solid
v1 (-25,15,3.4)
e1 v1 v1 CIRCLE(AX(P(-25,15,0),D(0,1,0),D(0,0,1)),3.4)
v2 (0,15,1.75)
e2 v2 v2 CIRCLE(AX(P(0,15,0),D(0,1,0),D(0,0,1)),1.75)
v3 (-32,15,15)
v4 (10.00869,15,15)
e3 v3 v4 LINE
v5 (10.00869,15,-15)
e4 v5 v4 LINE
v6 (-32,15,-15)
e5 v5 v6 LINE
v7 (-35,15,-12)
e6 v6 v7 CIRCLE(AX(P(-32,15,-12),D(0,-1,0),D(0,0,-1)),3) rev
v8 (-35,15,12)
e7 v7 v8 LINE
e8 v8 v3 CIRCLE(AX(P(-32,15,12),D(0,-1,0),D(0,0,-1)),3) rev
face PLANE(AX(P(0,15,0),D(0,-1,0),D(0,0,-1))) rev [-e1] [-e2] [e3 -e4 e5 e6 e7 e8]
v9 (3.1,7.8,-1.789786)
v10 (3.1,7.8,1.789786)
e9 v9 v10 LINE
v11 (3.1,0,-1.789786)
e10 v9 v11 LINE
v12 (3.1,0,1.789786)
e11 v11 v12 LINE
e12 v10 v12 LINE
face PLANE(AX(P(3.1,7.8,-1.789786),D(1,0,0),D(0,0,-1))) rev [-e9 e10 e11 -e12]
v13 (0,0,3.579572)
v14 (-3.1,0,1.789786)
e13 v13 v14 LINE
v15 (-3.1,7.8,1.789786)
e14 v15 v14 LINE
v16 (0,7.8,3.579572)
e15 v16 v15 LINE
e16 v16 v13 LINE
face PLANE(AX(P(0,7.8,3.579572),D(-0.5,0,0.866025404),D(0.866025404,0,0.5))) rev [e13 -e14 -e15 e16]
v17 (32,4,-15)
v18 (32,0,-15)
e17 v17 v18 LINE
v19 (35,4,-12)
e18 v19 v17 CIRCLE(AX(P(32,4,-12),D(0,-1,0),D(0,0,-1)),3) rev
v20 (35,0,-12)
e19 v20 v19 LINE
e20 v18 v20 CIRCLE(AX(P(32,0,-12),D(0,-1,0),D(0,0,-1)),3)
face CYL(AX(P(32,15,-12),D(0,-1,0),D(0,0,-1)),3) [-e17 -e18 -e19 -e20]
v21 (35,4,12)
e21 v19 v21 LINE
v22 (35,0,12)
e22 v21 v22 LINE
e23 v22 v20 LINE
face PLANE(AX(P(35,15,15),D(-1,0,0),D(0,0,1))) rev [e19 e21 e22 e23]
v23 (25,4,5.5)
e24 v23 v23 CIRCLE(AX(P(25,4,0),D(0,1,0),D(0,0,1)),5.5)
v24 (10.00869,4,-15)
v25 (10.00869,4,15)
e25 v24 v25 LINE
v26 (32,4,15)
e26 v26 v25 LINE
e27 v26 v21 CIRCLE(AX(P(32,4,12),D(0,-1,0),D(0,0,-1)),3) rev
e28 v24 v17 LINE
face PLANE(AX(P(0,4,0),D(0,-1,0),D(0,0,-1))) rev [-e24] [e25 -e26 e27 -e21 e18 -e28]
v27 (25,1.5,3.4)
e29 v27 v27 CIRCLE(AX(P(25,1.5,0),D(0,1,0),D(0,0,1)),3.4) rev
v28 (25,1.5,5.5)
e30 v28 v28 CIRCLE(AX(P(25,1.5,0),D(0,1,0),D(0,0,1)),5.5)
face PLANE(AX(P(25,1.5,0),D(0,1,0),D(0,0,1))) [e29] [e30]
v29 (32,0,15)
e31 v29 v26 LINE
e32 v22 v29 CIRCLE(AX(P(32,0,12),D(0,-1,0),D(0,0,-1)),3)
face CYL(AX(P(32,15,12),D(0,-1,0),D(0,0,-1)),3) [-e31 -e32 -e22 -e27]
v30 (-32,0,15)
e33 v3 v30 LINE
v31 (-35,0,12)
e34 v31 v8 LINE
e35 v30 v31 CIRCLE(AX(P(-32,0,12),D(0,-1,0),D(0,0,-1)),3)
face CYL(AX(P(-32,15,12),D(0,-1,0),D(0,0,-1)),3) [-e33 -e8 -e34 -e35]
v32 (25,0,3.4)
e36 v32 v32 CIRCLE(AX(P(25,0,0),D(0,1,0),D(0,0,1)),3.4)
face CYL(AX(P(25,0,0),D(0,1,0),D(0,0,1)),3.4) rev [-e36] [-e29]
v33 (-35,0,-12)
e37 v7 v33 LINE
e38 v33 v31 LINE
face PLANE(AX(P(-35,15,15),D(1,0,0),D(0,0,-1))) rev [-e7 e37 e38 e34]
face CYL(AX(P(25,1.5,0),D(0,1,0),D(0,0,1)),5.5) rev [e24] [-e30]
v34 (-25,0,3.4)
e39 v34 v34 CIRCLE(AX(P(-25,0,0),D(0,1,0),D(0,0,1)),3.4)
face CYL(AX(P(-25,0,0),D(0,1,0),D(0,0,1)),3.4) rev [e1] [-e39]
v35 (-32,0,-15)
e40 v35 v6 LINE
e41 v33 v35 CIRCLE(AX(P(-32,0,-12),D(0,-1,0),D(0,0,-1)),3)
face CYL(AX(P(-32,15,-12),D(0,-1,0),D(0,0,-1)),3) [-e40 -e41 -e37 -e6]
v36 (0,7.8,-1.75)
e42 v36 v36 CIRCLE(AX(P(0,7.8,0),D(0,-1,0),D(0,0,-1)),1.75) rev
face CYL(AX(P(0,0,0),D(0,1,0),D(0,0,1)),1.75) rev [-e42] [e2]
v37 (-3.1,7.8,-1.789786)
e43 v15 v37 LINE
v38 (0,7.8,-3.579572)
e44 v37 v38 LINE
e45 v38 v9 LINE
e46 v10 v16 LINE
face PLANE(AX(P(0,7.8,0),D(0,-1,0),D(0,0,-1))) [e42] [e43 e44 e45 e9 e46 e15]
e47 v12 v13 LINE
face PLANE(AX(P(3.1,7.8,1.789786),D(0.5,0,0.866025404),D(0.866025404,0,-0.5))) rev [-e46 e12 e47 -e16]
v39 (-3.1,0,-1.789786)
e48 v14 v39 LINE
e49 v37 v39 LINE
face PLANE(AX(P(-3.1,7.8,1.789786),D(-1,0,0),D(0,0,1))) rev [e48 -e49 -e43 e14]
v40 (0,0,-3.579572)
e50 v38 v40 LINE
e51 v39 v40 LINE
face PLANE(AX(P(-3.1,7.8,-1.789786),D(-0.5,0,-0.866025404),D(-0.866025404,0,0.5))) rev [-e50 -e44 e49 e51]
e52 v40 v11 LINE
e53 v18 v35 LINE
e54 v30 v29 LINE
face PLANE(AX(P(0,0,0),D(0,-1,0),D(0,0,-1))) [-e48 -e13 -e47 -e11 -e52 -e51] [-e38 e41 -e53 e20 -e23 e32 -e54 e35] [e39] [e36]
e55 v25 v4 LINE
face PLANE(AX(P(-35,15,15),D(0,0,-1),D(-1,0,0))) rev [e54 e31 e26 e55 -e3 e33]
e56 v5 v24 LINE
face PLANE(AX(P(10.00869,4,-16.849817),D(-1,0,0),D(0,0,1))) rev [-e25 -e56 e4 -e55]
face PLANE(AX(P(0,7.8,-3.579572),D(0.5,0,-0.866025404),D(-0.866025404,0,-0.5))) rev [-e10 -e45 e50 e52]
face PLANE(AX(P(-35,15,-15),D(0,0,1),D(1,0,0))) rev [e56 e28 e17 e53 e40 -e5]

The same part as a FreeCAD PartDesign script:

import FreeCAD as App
import Part
import Sketcher

V = App.Vector
Q = App.Units.Quantity


def edges_at(feature, points):
    """Names of the edges that pass closest to the given points."""
    edges = feature.Shape.Edges
    near = lambda p: min(range(len(edges)), key=lambda i: edges[i].distToShape(Part.Vertex(*p))[0])
    return sorted({f"Edge{near(p) + 1}" for p in points})

doc = App.newDocument("Part")
body = doc.addObject("PartDesign::Body", "Body")

sketch1 = body.newObject("Sketcher::SketchObject", "Sketch")
sketch1.AttachmentSupport = (doc.getObject("XZ_Plane"), [""])
sketch1.MapMode = "FlatFace"
sketch1.addGeometry(Part.LineSegment(V(-35, -15, 0), V(-35, 15, 0)), False)
sketch1.addGeometry(Part.LineSegment(V(-35, 15, 0), V(35, 15, 0)), False)
sketch1.addGeometry(Part.LineSegment(V(35, 15, 0), V(35, -15, 0)), False)
sketch1.addGeometry(Part.LineSegment(V(35, -15, 0), V(-35, -15, 0)), False)
sketch1.addConstraint(Sketcher.Constraint("Coincident", 0, 2, 1, 1))
sketch1.addConstraint(Sketcher.Constraint("Coincident", 1, 2, 2, 1))
sketch1.addConstraint(Sketcher.Constraint("Coincident", 2, 2, 3, 1))
sketch1.addConstraint(Sketcher.Constraint("Coincident", 3, 2, 0, 1))
sketch1.addConstraint(Sketcher.Constraint("Vertical", 0))
sketch1.addConstraint(Sketcher.Constraint("Horizontal", 1))
sketch1.addConstraint(Sketcher.Constraint("Vertical", 2))
sketch1.addConstraint(Sketcher.Constraint("Horizontal", 3))
sketch1.addConstraint(Sketcher.Constraint("Symmetric", 0, 2, 2, 2, -1, 1))
sketch1.addConstraint(Sketcher.Constraint("DistanceX", 1, 1, 1, 2, 70.0))
sketch1.addConstraint(Sketcher.Constraint("DistanceY", 0, 1, 0, 2, 30.0))
pad1 = body.newObject("PartDesign::Pad", "Pad")
pad1.Profile = sketch1
pad1.Length = 15
pad1.Reversed = True
doc.recompute()

fillet = body.newObject("PartDesign::Fillet", "Fillet")
fillet.Base = (pad1, edges_at(pad1, [
    (35, 7.5, 15),
    (-35, 7.5, 15),
    (-35, 7.5, -15),
    (35, 7.5, -15),
]))
fillet.Radius = 3

sketch2 = body.newObject("Sketcher::SketchObject", "Sketch001")
sketch2.AttachmentSupport = (doc.getObject("XZ_Plane"), [""])
sketch2.MapMode = "FlatFace"
sketch2.AttachmentOffset = App.Placement(V(0, 0, -15), App.Rotation())
sketch2.addGeometry(Part.Circle(V(0, 0, 0), V(0, 0, 1), 1.75), False)
sketch2.addGeometry(Part.Circle(V(-25, 0, 0), V(0, 0, 1), 3.4), False)
sketch2.addGeometry(Part.Circle(V(25, 0, 0), V(0, 0, 1), 3.4), False)
sketch2.addConstraint(Sketcher.Constraint("Coincident", 0, 3, -1, 1))
sketch2.addConstraint(Sketcher.Constraint("Equal", 1, 2))
sketch2.addConstraint(Sketcher.Constraint("Symmetric", 1, 3, 2, 3, -1, 1))
sketch2.addConstraint(Sketcher.Constraint("PointOnObject", 1, 3, -1))
sketch2.addConstraint(Sketcher.Constraint("Diameter", 0, 3.5))
sketch2.addConstraint(Sketcher.Constraint("Diameter", 1, 6.8))
sketch2.addConstraint(Sketcher.Constraint("DistanceX", 1, 3, -1, 1, 25.0))
pocket1 = body.newObject("PartDesign::Pocket", "Pocket")
pocket1.Profile = sketch2
pocket1.Type = "ThroughAll"
pocket1.Reversed = True

sketch3 = body.newObject("Sketcher::SketchObject", "Sketch002")
sketch3.AttachmentSupport = (doc.getObject("XZ_Plane"), [""])
sketch3.MapMode = "FlatFace"
sketch3.addGeometry(Part.LineSegment(V(0, 3.579572, 0), V(-3.1, 1.789786, 0)), False)
sketch3.addGeometry(Part.LineSegment(V(-3.1, 1.789786, 0), V(-3.1, -1.789786, 0)), False)
sketch3.addGeometry(Part.LineSegment(V(-3.1, -1.789786, 0), V(0, -3.579572, 0)), False)
sketch3.addGeometry(Part.LineSegment(V(0, -3.579572, 0), V(3.1, -1.789786, 0)), False)
sketch3.addGeometry(Part.LineSegment(V(3.1, -1.789786, 0), V(3.1, 1.789786, 0)), False)
sketch3.addGeometry(Part.LineSegment(V(3.1, 1.789786, 0), V(0, 3.579572, 0)), False)
sketch3.addConstraint(Sketcher.Constraint("Coincident", 0, 2, 1, 1))
sketch3.addConstraint(Sketcher.Constraint("Coincident", 1, 2, 2, 1))
sketch3.addConstraint(Sketcher.Constraint("Coincident", 2, 2, 3, 1))
sketch3.addConstraint(Sketcher.Constraint("Coincident", 3, 2, 4, 1))
sketch3.addConstraint(Sketcher.Constraint("Coincident", 4, 2, 5, 1))
sketch3.addConstraint(Sketcher.Constraint("Coincident", 5, 2, 0, 1))
sketch3.addConstraint(Sketcher.Constraint("Vertical", 1))
sketch3.addConstraint(Sketcher.Constraint("Vertical", 4))
sketch3.addConstraint(Sketcher.Constraint("Symmetric", 0, 2, 3, 2, -1, 1))
sketch3.addConstraint(Sketcher.Constraint("Symmetric", 2, 2, 5, 2, -1, 1))
sketch3.addConstraint(Sketcher.Constraint("PointOnObject", 2, 2, -2))
sketch3.addConstraint(Sketcher.Constraint("Parallel", 2, 5))
sketch3.addConstraint(Sketcher.Constraint("Horizontal", 1, 2, 3, 2))
sketch3.addConstraint(Sketcher.Constraint("Angle", 0, Q("-150 deg")))
sketch3.addConstraint(Sketcher.Constraint("DistanceX", 0, 2, -1, 1, 3.1))
sketch3.addConstraint(Sketcher.Constraint("DistanceY", 1, 2, 1, 1, 3.579572))
pocket2 = body.newObject("PartDesign::Pocket", "Pocket001")
pocket2.Profile = sketch3
pocket2.Length = 7.8

sketch4 = body.newObject("Sketcher::SketchObject", "Sketch003")
sketch4.AttachmentSupport = (doc.getObject("XZ_Plane"), [""])
sketch4.MapMode = "FlatFace"
sketch4.AttachmentOffset = App.Placement(V(0, 0, -15), App.Rotation())
sketch4.addGeometry(Part.LineSegment(V(10.00869, -16.849817, 0), V(10.00869, 19.084701, 0)), False)
sketch4.addGeometry(Part.LineSegment(V(10.00869, 19.084701, 0), V(40.089622, 19.084701, 0)), False)
sketch4.addGeometry(Part.LineSegment(V(40.089622, 19.084701, 0), V(40.089622, -16.849817, 0)), False)
sketch4.addGeometry(Part.LineSegment(V(40.089622, -16.849817, 0), V(10.00869, -16.849817, 0)), False)
sketch4.addConstraint(Sketcher.Constraint("Coincident", 0, 2, 1, 1))
sketch4.addConstraint(Sketcher.Constraint("Coincident", 1, 2, 2, 1))
sketch4.addConstraint(Sketcher.Constraint("Coincident", 2, 2, 3, 1))
sketch4.addConstraint(Sketcher.Constraint("Coincident", 3, 2, 0, 1))
sketch4.addConstraint(Sketcher.Constraint("Vertical", 0))
sketch4.addConstraint(Sketcher.Constraint("Horizontal", 1))
sketch4.addConstraint(Sketcher.Constraint("Vertical", 2))
sketch4.addConstraint(Sketcher.Constraint("Horizontal", 3))
sketch4.addConstraint(Sketcher.Constraint("DistanceX", 1, 1, 1, 2, 30.080931))
sketch4.addConstraint(Sketcher.Constraint("DistanceY", -1, 1, 0, 2, 19.084701))
sketch4.addConstraint(Sketcher.Constraint("DistanceY", 0, 1, 0, 2, 35.934518))
sketch4.addConstraint(Sketcher.Constraint("DistanceX", -1, 1, 0, 2, 10.00869))
pocket3 = body.newObject("PartDesign::Pocket", "Pocket002")
pocket3.Profile = sketch4
pocket3.Length = 11
pocket3.Reversed = True

sketch5 = body.newObject("Sketcher::SketchObject", "Sketch004")
sketch5.AttachmentSupport = (doc.getObject("XZ_Plane"), [""])
sketch5.MapMode = "FlatFace"
sketch5.AttachmentOffset = App.Placement(V(0, 0, -4), App.Rotation())
sketch5.addGeometry(Part.Circle(V(25, 0, 0), V(0, 0, 1), 5.5), False)
sketch5.addConstraint(Sketcher.Constraint("PointOnObject", 0, 3, -1))
sketch5.addConstraint(Sketcher.Constraint("Diameter", 0, 11.0))
sketch5.addConstraint(Sketcher.Constraint("DistanceX", -1, 1, 0, 3, 25.0))
pocket4 = body.newObject("PartDesign::Pocket", "Pocket003")
pocket4.Profile = sketch5
pocket4.Length = 2.5
pocket4.Reversed = True

doc.recompute()
